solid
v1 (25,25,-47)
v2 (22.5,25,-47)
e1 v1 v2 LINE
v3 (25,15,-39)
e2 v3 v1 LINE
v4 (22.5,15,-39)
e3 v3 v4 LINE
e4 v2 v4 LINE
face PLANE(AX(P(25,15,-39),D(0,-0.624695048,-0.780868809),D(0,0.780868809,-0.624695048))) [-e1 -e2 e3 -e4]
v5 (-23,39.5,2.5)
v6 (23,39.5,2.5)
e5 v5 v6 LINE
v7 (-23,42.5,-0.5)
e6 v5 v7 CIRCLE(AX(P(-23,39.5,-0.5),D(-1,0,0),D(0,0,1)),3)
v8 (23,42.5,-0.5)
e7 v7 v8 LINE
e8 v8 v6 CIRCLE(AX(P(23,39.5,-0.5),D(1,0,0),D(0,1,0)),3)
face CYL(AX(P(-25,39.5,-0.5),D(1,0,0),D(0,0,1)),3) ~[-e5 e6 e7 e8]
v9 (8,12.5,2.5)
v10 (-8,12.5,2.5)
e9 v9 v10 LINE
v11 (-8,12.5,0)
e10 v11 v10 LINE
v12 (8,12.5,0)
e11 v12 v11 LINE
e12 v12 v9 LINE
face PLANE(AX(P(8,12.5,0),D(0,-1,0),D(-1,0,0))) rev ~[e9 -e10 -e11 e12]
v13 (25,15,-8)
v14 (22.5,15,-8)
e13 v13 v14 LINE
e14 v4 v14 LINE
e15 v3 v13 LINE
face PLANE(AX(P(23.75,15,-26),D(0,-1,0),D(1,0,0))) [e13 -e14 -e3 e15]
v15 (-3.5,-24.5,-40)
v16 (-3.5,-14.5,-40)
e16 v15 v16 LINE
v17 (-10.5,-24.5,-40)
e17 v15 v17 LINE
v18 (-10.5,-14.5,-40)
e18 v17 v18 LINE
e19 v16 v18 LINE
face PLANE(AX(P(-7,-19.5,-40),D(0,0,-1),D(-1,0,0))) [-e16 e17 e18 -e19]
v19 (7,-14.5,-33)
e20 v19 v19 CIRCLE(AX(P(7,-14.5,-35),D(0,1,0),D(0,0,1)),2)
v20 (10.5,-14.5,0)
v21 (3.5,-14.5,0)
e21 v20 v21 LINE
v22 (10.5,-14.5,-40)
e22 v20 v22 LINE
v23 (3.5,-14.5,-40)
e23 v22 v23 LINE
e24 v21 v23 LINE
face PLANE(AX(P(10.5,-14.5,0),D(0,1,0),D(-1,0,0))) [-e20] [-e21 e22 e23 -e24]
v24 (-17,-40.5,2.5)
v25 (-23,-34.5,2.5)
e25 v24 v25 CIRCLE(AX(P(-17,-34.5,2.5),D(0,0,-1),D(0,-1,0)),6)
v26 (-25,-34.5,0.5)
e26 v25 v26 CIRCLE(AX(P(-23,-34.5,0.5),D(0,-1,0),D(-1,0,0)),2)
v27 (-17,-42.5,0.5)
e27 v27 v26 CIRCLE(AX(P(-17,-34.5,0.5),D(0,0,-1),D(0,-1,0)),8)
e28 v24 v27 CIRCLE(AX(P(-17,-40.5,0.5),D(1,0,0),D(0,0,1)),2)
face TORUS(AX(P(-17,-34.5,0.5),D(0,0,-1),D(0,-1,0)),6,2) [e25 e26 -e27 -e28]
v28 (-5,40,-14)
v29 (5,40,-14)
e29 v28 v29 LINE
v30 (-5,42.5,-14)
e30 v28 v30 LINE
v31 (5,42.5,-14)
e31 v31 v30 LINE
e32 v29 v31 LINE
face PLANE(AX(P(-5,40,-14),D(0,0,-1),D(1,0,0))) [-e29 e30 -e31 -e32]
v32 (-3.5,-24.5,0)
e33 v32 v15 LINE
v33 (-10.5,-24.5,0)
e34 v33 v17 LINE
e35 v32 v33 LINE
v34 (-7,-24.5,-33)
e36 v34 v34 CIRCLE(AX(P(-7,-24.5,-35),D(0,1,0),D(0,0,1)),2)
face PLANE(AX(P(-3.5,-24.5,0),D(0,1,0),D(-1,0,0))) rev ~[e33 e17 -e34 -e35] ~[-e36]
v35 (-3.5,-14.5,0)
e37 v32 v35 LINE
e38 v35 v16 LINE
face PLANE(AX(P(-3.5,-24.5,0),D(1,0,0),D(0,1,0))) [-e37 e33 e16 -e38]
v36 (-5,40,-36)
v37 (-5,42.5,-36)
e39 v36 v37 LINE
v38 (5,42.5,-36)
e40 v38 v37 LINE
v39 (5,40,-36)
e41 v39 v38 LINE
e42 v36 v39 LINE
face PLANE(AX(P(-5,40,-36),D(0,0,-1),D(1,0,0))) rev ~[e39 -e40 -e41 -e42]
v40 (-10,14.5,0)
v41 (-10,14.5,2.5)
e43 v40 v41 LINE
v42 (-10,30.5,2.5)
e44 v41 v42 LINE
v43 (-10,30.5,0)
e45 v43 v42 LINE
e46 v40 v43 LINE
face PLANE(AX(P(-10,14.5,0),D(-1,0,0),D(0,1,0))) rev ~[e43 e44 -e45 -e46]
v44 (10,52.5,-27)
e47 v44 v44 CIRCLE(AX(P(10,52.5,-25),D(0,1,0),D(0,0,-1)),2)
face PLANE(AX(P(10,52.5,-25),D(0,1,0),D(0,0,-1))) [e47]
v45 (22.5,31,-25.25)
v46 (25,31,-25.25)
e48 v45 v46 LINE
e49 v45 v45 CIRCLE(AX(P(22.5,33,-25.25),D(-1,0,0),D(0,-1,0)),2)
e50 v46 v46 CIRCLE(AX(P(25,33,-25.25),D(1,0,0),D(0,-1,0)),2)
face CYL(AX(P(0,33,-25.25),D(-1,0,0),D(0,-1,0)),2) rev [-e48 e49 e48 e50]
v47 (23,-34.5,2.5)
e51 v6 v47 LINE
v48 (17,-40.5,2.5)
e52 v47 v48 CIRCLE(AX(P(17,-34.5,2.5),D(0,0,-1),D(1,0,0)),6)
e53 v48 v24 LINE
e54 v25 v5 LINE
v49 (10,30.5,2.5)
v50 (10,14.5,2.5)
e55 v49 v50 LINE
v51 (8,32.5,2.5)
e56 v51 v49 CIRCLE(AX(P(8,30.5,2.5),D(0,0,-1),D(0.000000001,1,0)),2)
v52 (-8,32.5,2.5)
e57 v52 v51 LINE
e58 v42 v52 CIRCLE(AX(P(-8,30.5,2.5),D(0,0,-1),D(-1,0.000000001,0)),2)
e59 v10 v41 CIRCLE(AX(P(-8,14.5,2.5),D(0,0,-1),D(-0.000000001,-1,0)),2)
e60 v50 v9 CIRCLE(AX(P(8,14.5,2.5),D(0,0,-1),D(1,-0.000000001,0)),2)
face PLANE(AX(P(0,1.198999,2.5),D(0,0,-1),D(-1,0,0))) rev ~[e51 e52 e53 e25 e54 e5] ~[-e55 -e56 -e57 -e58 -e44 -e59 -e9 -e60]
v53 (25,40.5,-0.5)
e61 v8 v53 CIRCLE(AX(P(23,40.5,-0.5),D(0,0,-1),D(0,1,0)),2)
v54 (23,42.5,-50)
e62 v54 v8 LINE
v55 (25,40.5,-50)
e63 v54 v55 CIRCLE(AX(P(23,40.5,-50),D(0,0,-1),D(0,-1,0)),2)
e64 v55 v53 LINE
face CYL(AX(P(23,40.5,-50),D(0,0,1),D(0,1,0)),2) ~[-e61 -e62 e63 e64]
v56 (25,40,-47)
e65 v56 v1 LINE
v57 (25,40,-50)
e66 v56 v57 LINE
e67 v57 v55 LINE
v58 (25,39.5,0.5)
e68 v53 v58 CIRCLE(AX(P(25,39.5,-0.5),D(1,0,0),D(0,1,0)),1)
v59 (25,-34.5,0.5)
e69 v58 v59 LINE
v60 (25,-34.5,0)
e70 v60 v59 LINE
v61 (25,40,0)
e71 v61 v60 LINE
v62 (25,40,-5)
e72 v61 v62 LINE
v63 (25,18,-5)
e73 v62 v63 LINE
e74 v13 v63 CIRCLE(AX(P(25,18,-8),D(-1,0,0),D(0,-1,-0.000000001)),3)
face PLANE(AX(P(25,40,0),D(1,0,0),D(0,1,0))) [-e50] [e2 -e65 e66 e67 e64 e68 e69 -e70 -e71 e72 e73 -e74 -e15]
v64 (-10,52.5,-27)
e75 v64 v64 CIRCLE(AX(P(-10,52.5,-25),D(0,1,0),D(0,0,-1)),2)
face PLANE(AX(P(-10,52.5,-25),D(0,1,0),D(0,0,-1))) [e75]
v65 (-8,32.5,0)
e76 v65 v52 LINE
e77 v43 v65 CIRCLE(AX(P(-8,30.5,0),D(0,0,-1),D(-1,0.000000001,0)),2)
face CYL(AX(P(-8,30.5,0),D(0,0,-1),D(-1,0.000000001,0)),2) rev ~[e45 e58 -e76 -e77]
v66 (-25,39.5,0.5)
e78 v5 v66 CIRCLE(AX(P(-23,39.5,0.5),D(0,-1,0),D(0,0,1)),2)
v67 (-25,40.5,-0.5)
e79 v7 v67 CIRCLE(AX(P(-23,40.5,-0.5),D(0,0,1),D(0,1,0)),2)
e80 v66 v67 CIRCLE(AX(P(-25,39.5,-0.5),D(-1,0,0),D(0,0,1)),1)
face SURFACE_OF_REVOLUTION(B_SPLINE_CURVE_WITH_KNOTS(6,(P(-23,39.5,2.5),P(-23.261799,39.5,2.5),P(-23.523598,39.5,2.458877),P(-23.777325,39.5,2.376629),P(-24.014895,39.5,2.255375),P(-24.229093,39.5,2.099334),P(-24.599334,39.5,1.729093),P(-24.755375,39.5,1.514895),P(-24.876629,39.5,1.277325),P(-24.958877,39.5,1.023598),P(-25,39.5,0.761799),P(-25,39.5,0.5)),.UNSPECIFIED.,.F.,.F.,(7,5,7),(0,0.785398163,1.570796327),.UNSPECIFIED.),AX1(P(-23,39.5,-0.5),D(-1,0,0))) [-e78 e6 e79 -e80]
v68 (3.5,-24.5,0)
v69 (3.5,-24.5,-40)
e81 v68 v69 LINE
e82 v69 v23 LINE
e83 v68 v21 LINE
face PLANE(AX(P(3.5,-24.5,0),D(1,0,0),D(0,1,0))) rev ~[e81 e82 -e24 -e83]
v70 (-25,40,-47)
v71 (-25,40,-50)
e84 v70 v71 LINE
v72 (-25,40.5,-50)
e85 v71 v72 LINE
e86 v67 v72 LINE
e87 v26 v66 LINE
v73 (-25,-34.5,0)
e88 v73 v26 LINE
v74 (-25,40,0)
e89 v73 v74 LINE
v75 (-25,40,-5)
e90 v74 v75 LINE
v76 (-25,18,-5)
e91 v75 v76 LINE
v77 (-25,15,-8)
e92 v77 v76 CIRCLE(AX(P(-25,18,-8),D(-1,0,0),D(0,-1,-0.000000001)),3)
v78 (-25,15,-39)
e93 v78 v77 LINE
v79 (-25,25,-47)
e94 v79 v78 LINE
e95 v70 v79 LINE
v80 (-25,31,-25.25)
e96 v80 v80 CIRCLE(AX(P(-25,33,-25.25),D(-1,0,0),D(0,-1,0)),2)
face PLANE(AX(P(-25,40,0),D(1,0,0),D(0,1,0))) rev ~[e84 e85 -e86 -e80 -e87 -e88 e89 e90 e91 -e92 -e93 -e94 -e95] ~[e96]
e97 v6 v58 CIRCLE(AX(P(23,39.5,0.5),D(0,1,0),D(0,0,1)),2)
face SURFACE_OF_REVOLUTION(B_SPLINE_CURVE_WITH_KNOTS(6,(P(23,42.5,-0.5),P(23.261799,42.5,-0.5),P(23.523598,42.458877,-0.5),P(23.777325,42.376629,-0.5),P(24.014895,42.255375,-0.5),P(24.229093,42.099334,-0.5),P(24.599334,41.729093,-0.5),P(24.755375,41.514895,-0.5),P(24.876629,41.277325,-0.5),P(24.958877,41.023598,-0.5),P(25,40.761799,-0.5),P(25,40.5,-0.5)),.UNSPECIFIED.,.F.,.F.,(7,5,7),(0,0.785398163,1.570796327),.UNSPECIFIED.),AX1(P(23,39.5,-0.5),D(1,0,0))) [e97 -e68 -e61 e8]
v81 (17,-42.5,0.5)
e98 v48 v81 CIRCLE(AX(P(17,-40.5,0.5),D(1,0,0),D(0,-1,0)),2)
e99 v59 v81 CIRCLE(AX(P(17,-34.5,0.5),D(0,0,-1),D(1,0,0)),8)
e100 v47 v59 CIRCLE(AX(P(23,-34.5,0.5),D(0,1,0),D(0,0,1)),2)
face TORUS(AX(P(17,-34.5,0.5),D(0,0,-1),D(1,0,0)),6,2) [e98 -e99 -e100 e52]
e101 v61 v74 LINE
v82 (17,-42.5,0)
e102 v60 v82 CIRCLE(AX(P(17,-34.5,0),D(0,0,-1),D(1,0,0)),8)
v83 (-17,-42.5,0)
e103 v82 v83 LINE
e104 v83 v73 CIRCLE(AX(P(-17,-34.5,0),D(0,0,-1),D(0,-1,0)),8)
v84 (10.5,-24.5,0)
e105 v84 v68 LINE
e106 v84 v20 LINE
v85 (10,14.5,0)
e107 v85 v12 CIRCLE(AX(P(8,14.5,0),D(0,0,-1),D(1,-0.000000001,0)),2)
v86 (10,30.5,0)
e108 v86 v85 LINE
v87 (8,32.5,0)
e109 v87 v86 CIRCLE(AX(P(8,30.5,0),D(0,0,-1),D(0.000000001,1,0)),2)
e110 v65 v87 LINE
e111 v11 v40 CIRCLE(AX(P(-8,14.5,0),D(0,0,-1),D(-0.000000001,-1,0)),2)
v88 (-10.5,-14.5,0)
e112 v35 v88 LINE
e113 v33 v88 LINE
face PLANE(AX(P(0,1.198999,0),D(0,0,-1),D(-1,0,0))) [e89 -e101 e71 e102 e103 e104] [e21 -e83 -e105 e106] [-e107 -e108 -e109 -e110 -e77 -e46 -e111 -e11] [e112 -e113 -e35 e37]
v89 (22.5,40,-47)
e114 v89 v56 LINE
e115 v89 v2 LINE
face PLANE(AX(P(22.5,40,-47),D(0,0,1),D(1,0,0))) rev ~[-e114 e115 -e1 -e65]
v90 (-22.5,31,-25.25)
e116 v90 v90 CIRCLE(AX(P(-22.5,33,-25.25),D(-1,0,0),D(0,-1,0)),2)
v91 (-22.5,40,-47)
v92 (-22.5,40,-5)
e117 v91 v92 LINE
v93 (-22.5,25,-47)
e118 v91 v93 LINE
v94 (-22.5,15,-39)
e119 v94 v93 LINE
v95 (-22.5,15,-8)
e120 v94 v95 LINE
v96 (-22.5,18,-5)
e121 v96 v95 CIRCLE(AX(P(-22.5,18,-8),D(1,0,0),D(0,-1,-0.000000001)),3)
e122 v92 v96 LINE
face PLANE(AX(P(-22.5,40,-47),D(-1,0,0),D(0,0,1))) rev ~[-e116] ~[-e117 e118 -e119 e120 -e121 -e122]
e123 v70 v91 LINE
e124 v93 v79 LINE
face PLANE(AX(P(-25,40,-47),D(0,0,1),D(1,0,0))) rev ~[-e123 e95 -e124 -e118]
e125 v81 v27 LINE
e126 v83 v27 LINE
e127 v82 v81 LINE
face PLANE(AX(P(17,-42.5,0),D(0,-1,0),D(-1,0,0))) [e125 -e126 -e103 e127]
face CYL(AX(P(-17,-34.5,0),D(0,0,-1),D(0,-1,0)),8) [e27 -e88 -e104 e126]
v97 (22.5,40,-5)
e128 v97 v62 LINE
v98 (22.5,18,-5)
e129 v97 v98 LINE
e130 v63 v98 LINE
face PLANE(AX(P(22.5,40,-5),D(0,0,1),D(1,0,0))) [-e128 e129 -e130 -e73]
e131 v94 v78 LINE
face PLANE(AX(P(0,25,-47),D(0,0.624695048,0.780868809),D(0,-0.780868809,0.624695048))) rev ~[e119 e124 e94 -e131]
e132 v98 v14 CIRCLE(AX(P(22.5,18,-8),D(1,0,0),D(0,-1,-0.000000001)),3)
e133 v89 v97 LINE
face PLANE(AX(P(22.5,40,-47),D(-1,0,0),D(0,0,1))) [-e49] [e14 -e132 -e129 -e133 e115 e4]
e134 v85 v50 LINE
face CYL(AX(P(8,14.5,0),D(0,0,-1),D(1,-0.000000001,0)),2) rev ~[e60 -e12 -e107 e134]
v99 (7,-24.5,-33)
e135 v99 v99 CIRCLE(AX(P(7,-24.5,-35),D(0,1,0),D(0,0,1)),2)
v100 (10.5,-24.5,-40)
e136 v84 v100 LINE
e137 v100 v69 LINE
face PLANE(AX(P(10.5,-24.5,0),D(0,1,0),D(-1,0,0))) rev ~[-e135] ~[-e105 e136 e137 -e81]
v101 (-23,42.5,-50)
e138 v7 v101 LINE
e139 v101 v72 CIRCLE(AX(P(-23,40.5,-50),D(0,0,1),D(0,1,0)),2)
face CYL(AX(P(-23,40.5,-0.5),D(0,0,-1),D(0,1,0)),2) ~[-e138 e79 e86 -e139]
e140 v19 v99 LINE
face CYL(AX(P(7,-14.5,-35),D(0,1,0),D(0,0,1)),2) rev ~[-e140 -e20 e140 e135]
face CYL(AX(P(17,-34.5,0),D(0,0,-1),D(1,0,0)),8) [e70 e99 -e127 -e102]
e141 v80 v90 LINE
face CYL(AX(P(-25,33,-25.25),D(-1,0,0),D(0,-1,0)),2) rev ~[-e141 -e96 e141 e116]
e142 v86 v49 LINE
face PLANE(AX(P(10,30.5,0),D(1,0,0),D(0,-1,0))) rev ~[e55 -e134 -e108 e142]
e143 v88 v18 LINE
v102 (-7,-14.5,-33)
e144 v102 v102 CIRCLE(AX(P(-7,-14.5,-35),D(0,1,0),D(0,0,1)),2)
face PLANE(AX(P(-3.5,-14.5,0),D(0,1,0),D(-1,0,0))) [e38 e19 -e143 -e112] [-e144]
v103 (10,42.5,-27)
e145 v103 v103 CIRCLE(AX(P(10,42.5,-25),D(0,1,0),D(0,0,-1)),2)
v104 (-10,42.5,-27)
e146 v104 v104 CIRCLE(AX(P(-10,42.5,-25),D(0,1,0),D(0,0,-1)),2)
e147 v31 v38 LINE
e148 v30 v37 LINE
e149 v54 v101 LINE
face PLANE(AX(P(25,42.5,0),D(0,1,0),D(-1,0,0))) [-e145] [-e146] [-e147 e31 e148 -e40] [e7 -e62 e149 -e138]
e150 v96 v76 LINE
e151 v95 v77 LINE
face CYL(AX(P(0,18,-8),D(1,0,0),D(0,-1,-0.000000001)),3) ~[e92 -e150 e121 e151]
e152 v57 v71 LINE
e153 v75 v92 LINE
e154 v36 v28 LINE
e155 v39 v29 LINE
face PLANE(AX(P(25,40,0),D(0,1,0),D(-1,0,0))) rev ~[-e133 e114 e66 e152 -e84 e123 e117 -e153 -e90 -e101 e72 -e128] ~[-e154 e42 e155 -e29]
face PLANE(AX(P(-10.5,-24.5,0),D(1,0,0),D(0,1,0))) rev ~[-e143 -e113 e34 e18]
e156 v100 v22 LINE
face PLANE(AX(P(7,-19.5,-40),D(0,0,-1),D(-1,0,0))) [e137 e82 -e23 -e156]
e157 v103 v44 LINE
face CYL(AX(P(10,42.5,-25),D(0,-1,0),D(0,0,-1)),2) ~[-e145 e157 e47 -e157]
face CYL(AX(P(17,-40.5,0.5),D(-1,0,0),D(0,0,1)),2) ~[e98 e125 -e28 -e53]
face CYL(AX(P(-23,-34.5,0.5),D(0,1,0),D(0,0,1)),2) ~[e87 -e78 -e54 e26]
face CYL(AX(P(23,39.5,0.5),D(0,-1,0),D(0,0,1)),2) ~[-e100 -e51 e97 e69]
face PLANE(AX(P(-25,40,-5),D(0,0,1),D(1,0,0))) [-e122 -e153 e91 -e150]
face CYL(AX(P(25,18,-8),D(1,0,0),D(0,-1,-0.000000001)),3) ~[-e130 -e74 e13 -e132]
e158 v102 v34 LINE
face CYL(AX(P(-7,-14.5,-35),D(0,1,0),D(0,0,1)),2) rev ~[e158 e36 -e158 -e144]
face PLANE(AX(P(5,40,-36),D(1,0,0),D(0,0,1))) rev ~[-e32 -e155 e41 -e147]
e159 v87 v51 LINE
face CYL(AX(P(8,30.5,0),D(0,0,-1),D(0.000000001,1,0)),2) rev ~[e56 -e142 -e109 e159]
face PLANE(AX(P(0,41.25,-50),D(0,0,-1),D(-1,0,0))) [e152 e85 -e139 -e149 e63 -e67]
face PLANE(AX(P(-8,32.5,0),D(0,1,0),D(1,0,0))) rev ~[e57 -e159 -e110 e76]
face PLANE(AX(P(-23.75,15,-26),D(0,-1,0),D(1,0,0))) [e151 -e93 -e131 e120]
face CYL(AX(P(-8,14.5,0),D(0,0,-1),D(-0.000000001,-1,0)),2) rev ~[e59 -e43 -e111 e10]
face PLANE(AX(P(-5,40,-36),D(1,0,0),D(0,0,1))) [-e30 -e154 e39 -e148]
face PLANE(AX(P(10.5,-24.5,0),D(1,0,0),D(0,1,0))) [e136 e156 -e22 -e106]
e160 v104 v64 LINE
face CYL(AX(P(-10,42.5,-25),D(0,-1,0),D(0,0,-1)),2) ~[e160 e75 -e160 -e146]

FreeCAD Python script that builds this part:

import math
import FreeCAD as App
import Part
import Sketcher
from FreeCAD import Vector


def edges_at(feature, points):
    """Names of the edges that pass closest to the given points."""
    edges = feature.Shape.Edges
    near = lambda p: min(range(len(edges)), key=lambda i: edges[i].distToShape(Part.Vertex(*p))[0])
    return sorted({f"Edge{near(p) + 1}" for p in points})

doc = App.newDocument("Part")
params = doc.addObject("Spreadsheet::Sheet", "Params")
for row, (alias, value) in enumerate([
    ("sketch1_radius", "8 mm"),
    ("sketch1_radius2", "2 mm"),
    ("sketch1_width", "34 mm"),
    ("sketch1_width2", "16 mm"),
    ("sketch1_height", "77 mm"),
    ("pad1_length", "2.5 mm"),
    ("sketch2_width", "50 mm"),
    ("sketch2_height", "2.5 mm"),
    ("pad2_length", "50 mm"),
    ("fillet_radius", "3 mm"),
    ("sketch3_height", "42 mm"),
    ("sketch3_width", "2.5 mm"),
    ("pad3_length", "25 mm"),
    ("fillet2_radius", "2 mm"),
    ("sketch4_radius", "3 mm"),
    ("sketch4_width", "10 mm"),
    ("sketch4_height", "8 mm"),
    ("pocket1_length", "25 mm"),
    ("sketch5_radius", "3 mm"),
    ("sketch5_width", "10 mm"),
    ("sketch5_height", "8 mm"),
    ("pocket2_length", "25 mm"),
    ("sketch6_width", "10 mm"),
    ("sketch6_height", "22 mm"),
    ("pocket3_length", "25 mm"),
    ("sketch7_diameter", "4 mm"),
    ("pocket4_length", "25 mm"),
    ("sketch8_diameter", "4 mm"),
    ("pocket5_length", "25 mm"),
    ("sketch9_diameter", "4 mm"),
    ("pad4_length", "10 mm"),
    ("sketch10_width", "7 mm"),
    ("sketch10_height", "10 mm"),
    ("pad5_length", "40 mm"),
    ("sketch11_diameter", "4 mm"),
    ("pocket6_length", "50 mm"),
    ("sketch12_diameter", "4 mm"),
    ("pocket7_length", "50 mm"),
], start=1):
    params.set(f"A{row}", alias)
    params.set(f"B{row}", "=" + value)
    params.setAlias(f"B{row}", alias)

body = doc.addObject("PartDesign::Body", "Body")

# Sketch on XY plane
sketch1 = body.newObject("Sketcher::SketchObject", "Sketch")
sketch1.AttachmentSupport = (doc.getObject("XY_Plane"), [""])
sketch1.MapMode = "FlatFace"
sketch1.addGeometry([
    Part.LineSegment(Vector(-17, -42.5, 0), Vector(17, -42.5, 0)),  # 0
    Part.ArcOfCircle(Part.Circle(Vector(17, -34.5, 0), Vector(0, 0, 1), 8), math.radians(-90), math.radians(0)),  # 1
    Part.LineSegment(Vector(25, -34.5, 0), Vector(25, 42.5, 0)),  # 2
    Part.LineSegment(Vector(25, 42.5, 0), Vector(-25, 42.5, 0)),  # 3
    Part.LineSegment(Vector(-25, 42.5, 0), Vector(-25, -34.5, 0)),  # 4
    Part.ArcOfCircle(Part.Circle(Vector(-17, -34.5, 0), Vector(0, 0, 1), 8), math.radians(-180), math.radians(-90)),  # 5
    Part.LineSegment(Vector(8, 12.5, 0), Vector(-8, 12.5, 0)),  # 6
    Part.ArcOfCircle(Part.Circle(Vector(-8, 14.5, 0), Vector(0, 0, 1), 2), math.radians(-180), math.radians(-90)),  # 7
    Part.LineSegment(Vector(-10, 14.5, 0), Vector(-10, 30.5, 0)),  # 8
    Part.ArcOfCircle(Part.Circle(Vector(-8, 30.5, 0), Vector(0, 0, 1), 2), math.radians(90), math.radians(180)),  # 9
    Part.LineSegment(Vector(-8, 32.5, 0), Vector(8, 32.5, 0)),  # 10
    Part.ArcOfCircle(Part.Circle(Vector(8, 30.5, 0), Vector(0, 0, 1), 2), math.radians(0), math.radians(90)),  # 11
    Part.LineSegment(Vector(10, 30.5, 0), Vector(10, 14.5, 0)),  # 12
    Part.ArcOfCircle(Part.Circle(Vector(8, 14.5, 0), Vector(0, 0, 1), 2), math.radians(-90), math.radians(0)),  # 13
], False)
sketch1.addConstraint([
    Sketcher.Constraint("Tangent", 0, 2, 1, 1),
    Sketcher.Constraint("Tangent", 1, 2, 2, 1),
    Sketcher.Constraint("Coincident", 2, 2, 3, 1),
    Sketcher.Constraint("Coincident", 3, 2, 4, 1),
    Sketcher.Constraint("Tangent", 4, 2, 5, 1),
    Sketcher.Constraint("Tangent", 5, 2, 0, 1),
    Sketcher.Constraint("Tangent", 6, 2, 7, 2),
    Sketcher.Constraint("Tangent", 7, 1, 8, 1),
    Sketcher.Constraint("Tangent", 8, 2, 9, 2),
    Sketcher.Constraint("Tangent", 9, 1, 10, 1),
    Sketcher.Constraint("Tangent", 10, 2, 11, 2),
    Sketcher.Constraint("Tangent", 11, 1, 12, 1),
    Sketcher.Constraint("Tangent", 12, 2, 13, 2),
    Sketcher.Constraint("Tangent", 13, 1, 6, 1),
    Sketcher.Constraint("Horizontal", 0),
    Sketcher.Constraint("Vertical", 2),
    Sketcher.Constraint("Horizontal", 3),
    Sketcher.Constraint("Vertical", 4),
    Sketcher.Constraint("Horizontal", 6),
    Sketcher.Constraint("Vertical", 8),
    Sketcher.Constraint("Horizontal", 10),
    Sketcher.Constraint("Vertical", 12),
    Sketcher.Constraint("Equal", 1, 5),
    Sketcher.Constraint("Equal", 7, 9),
    Sketcher.Constraint("Equal", 9, 11),
    Sketcher.Constraint("Equal", 11, 13),
    Sketcher.Constraint("Equal", 10, 8),
    Sketcher.Constraint("Radius", 1, 8.0),
    Sketcher.Constraint("Radius", 7, 2.0),
    Sketcher.Constraint("DistanceX", 0, 1, 0, 2, 34.0),
    Sketcher.Constraint("DistanceX", 6, 2, 6, 1, 16.0),
    Sketcher.Constraint("DistanceY", 2, 1, 2, 2, 77.0),
    Sketcher.Constraint("DistanceX", -1, 1, 1, 3, 17.0),
    Sketcher.Constraint("DistanceX", 7, 3, -1, 1, 8.0),
    Sketcher.Constraint("DistanceY", 5, 3, 7, 3, 49.0),
    Sketcher.Constraint("DistanceY", 1, 3, -1, 1, 34.5),
])
sketch1.setExpression("Constraints[27]", "Params.sketch1_radius")
sketch1.setExpression("Constraints[28]", "Params.sketch1_radius2")
sketch1.setExpression("Constraints[29]", "Params.sketch1_width")
sketch1.setExpression("Constraints[30]", "Params.sketch1_width2")
sketch1.setExpression("Constraints[31]", "Params.sketch1_height")
pad1 = body.newObject("PartDesign::Pad", "Pad")
pad1.Profile = sketch1
pad1.setExpression("Length", "Params.pad1_length")

# Sketch on XY plane
sketch2 = body.newObject("Sketcher::SketchObject", "Sketch001")
sketch2.AttachmentSupport = (doc.getObject("XY_Plane"), [""])
sketch2.MapMode = "FlatFace"
sketch2.addGeometry([
    Part.LineSegment(Vector(25, 42.5, 0), Vector(25, 40, 0)),
    Part.LineSegment(Vector(25, 40, 0), Vector(-25, 40, 0)),
    Part.LineSegment(Vector(-25, 40, 0), Vector(-25, 42.5, 0)),
    Part.LineSegment(Vector(-25, 42.5, 0), Vector(25, 42.5, 0)),
], False)
sketch2.addConstraint([
    Sketcher.Constraint("Coincident", 0, 2, 1, 1),
    Sketcher.Constraint("Coincident", 1, 2, 2, 1),
    Sketcher.Constraint("Coincident", 2, 2, 3, 1),
    Sketcher.Constraint("Coincident", 3, 2, 0, 1),
    Sketcher.Constraint("Vertical", 0),
    Sketcher.Constraint("Horizontal", 1),
    Sketcher.Constraint("Vertical", 2),
    Sketcher.Constraint("Horizontal", 3),
    Sketcher.Constraint("DistanceX", 1, 2, 1, 1, 50.0),
    Sketcher.Constraint("DistanceY", 0, 2, 0, 1, 2.5),
    Sketcher.Constraint("DistanceX", -1, 1, 0, 2, 25.0),
    Sketcher.Constraint("DistanceY", -1, 1, 0, 2, 40.0),
])
sketch2.setExpression("Constraints[8]", "Params.sketch2_width")
sketch2.setExpression("Constraints[9]", "Params.sketch2_height")
pad2 = body.newObject("PartDesign::Pad", "Pad001")
pad2.Profile = sketch2
pad2.setExpression("Length", "Params.pad2_length")
pad2.Reversed = True
doc.recompute()

fillet = body.newObject("PartDesign::Fillet", "Fillet")
fillet.Base = (pad2, edges_at(pad2, [(0, 42.5, 2.5)]))
fillet.setExpression("Radius", "Params.fillet_radius")

# Sketch on XZ plane
sketch3 = body.newObject("Sketcher::SketchObject", "Sketch002")
sketch3.AttachmentSupport = (doc.getObject("XZ_Plane"), [""])
sketch3.MapMode = "FlatFace"
sketch3.AttachmentOffset = App.Placement(Vector(0, 0, -40), App.Rotation())
sketch3.addGeometry([
    Part.LineSegment(Vector(-25, -5, 0), Vector(-25, -47, 0)),  # 0
    Part.LineSegment(Vector(-25, -47, 0), Vector(-22.5, -47, 0)),  # 1
    Part.LineSegment(Vector(-22.5, -47, 0), Vector(-22.5, -5, 0)),  # 2
    Part.LineSegment(Vector(-22.5, -5, 0), Vector(-25, -5, 0)),  # 3
    Part.LineSegment(Vector(22.5, -5, 0), Vector(22.5, -47, 0)),  # 4
    Part.LineSegment(Vector(22.5, -47, 0), Vector(25, -47, 0)),  # 5
    Part.LineSegment(Vector(25, -47, 0), Vector(25, -5, 0)),  # 6
    Part.LineSegment(Vector(25, -5, 0), Vector(22.5, -5, 0)),  # 7
], False)
sketch3.addConstraint([
    Sketcher.Constraint("Coincident", 0, 2, 1, 1),
    Sketcher.Constraint("Coincident", 1, 2, 2, 1),
    Sketcher.Constraint("Coincident", 2, 2, 3, 1),
    Sketcher.Constraint("Coincident", 3, 2, 0, 1),
    Sketcher.Constraint("Coincident", 4, 2, 5, 1),
    Sketcher.Constraint("Coincident", 5, 2, 6, 1),
    Sketcher.Constraint("Coincident", 6, 2, 7, 1),
    Sketcher.Constraint("Coincident", 7, 2, 4, 1),
    Sketcher.Constraint("Vertical", 0),
    Sketcher.Constraint("Horizontal", 1),
    Sketcher.Constraint("Vertical", 2),
    Sketcher.Constraint("Horizontal", 3),
    Sketcher.Constraint("Vertical", 4),
    Sketcher.Constraint("Horizontal", 5),
    Sketcher.Constraint("Vertical", 6),
    Sketcher.Constraint("Horizontal", 7),
    Sketcher.Constraint("Symmetric", 1, 2, 4, 2, -2),
    Sketcher.Constraint("Symmetric", 3, 2, 6, 2, -2),
    Sketcher.Constraint("DistanceY", 0, 2, 0, 1, 42.0),
    Sketcher.Constraint("DistanceX", 1, 1, 1, 2, 2.5),
    Sketcher.Constraint("DistanceX", 0, 2, -1, 1, 25.0),
    Sketcher.Constraint("DistanceY", 0, 2, -1, 1, 47.0),
])
sketch3.setExpression("Constraints[18]", "Params.sketch3_height")
sketch3.setExpression("Constraints[19]", "Params.sketch3_width")
pad3 = body.newObject("PartDesign::Pad", "Pad002")
pad3.Profile = sketch3
pad3.setExpression("Length", "Params.pad3_length")
doc.recompute()

fillet2 = body.newObject("PartDesign::Fillet", "Fillet001")
fillet2.Base = (pad3, edges_at(pad3, [
    (0, -42.5, 2.5),
    (22.657, -40.157, 2.5),
    (25, 2.5, 2.5),
    (-25, 2.5, 2.5),
    (-25, 42.5, -25.25),
    (-25, 41.621, 1.621),
    (25, 42.5, -25.25),
    (25, 41.621, 1.621),
    (-22.657, -40.157, 2.5),
]))
fillet2.setExpression("Radius", "Params.fillet2_radius")

# Sketch on YZ plane
sketch4 = body.newObject("Sketcher::SketchObject", "Sketch003")
sketch4.AttachmentSupport = (doc.getObject("YZ_Plane"), [""])
sketch4.MapMode = "FlatFace"
sketch4.AttachmentOffset = App.Placement(Vector(0, 0, 25), App.Rotation())
sketch4.addGeometry([
    Part.LineSegment(Vector(25, -47, 0), Vector(15, -39, 0)),  # 0
    Part.LineSegment(Vector(15, -39, 0), Vector(15, -47, 0)),  # 1
    Part.LineSegment(Vector(15, -47, 0), Vector(25, -47, 0)),  # 2
    Part.LineSegment(Vector(18, -5, 0), Vector(15, -5, 0)),  # 3
    Part.LineSegment(Vector(15, -5, 0), Vector(15, -8, 0)),  # 4
    Part.ArcOfCircle(Part.Circle(Vector(18, -8, 0), Vector(0, 0, 1), 3), math.radians(90), math.radians(180)),  # 5
], False)
sketch4.addConstraint([
    Sketcher.Constraint("Coincident", 0, 2, 1, 1),
    Sketcher.Constraint("Coincident", 1, 2, 2, 1),
    Sketcher.Constraint("Coincident", 2, 2, 0, 1),
    Sketcher.Constraint("Coincident", 3, 2, 4, 1),
    Sketcher.Constraint("Tangent", 4, 2, 5, 2),
    Sketcher.Constraint("Tangent", 5, 1, 3, 1),
    Sketcher.Constraint("Vertical", 1),
    Sketcher.Constraint("Horizontal", 2),
    Sketcher.Constraint("Horizontal", 3),
    Sketcher.Constraint("Vertical", 4),
    Sketcher.Constraint("Vertical", 1, 2, 3, 2),
    Sketcher.Constraint("Radius", 5, 3.0),
    Sketcher.Constraint("DistanceX", 2, 1, 2, 2, 10.0),
    Sketcher.Constraint("DistanceY", 1, 2, 1, 1, 8.0),
    Sketcher.Constraint("DistanceX", -1, 1, 5, 3, 18.0),
    Sketcher.Constraint("DistanceY", 5, 3, -1, 1, 8.0),
    Sketcher.Constraint("DistanceY", 0, 2, -1, 1, 39.0),
])
sketch4.setExpression("Constraints[11]", "Params.sketch4_radius")
sketch4.setExpression("Constraints[12]", "Params.sketch4_width")
sketch4.setExpression("Constraints[13]", "Params.sketch4_height")
pocket1 = body.newObject("PartDesign::Pocket", "Pocket")
pocket1.Profile = sketch4
pocket1.setExpression("Length", "Params.pocket1_length")

# Sketch on YZ plane
sketch5 = body.newObject("Sketcher::SketchObject", "Sketch004")
sketch5.AttachmentSupport = (doc.getObject("YZ_Plane"), [""])
sketch5.MapMode = "FlatFace"
sketch5.addGeometry([
    Part.LineSegment(Vector(15, -47, 0), Vector(15, -39, 0)),  # 0
    Part.LineSegment(Vector(15, -39, 0), Vector(25, -47, 0)),  # 1
    Part.LineSegment(Vector(25, -47, 0), Vector(15, -47, 0)),  # 2
    Part.LineSegment(Vector(15, -5, 0), Vector(18, -5, 0)),  # 3
    Part.ArcOfCircle(Part.Circle(Vector(18, -8, 0), Vector(0, 0, 1), 3), math.radians(90), math.radians(180)),  # 4
    Part.LineSegment(Vector(15, -8, 0), Vector(15, -5, 0)),  # 5
], False)
sketch5.addConstraint([
    Sketcher.Constraint("Coincident", 0, 2, 1, 1),
    Sketcher.Constraint("Coincident", 1, 2, 2, 1),
    Sketcher.Constraint("Coincident", 2, 2, 0, 1),
    Sketcher.Constraint("Tangent", 3, 2, 4, 1),
    Sketcher.Constraint("Tangent", 4, 2, 5, 1),
    Sketcher.Constraint("Coincident", 5, 2, 3, 1),
    Sketcher.Constraint("Vertical", 0),
    Sketcher.Constraint("Horizontal", 2),
    Sketcher.Constraint("Horizontal", 3),
    Sketcher.Constraint("Vertical", 5),
    Sketcher.Constraint("Vertical", 2, 2, 4, 2),
    Sketcher.Constraint("Radius", 4, 3.0),
    Sketcher.Constraint("DistanceX", 2, 2, 2, 1, 10.0),
    Sketcher.Constraint("DistanceY", 0, 1, 0, 2, 8.0),
    Sketcher.Constraint("DistanceX", -1, 1, 4, 3, 18.0),
    Sketcher.Constraint("DistanceY", 4, 3, -1, 1, 8.0),
    Sketcher.Constraint("DistanceY", 0, 2, -1, 1, 39.0),
])
sketch5.setExpression("Constraints[11]", "Params.sketch5_radius")
sketch5.setExpression("Constraints[12]", "Params.sketch5_width")
sketch5.setExpression("Constraints[13]", "Params.sketch5_height")
pocket2 = body.newObject("PartDesign::Pocket", "Pocket001")
pocket2.Profile = sketch5
pocket2.setExpression("Length", "Params.pocket2_length")

# Sketch on XZ plane
sketch6 = body.newObject("Sketcher::SketchObject", "Sketch005")
sketch6.AttachmentSupport = (doc.getObject("XZ_Plane"), [""])
sketch6.MapMode = "FlatFace"
sketch6.AttachmentOffset = App.Placement(Vector(0, 0, -40), App.Rotation())
sketch6.addGeometry([
    Part.LineSegment(Vector(-5, -14, 0), Vector(-5, -36, 0)),
    Part.LineSegment(Vector(-5, -36, 0), Vector(5, -36, 0)),
    Part.LineSegment(Vector(5, -36, 0), Vector(5, -14, 0)),
    Part.LineSegment(Vector(5, -14, 0), Vector(-5, -14, 0)),
], False)
sketch6.addConstraint([
    Sketcher.Constraint("Coincident", 0, 2, 1, 1),
    Sketcher.Constraint("Coincident", 1, 2, 2, 1),
    Sketcher.Constraint("Coincident", 2, 2, 3, 1),
    Sketcher.Constraint("Coincident", 3, 2, 0, 1),
    Sketcher.Constraint("Vertical", 0),
    Sketcher.Constraint("Horizontal", 1),
    Sketcher.Constraint("Vertical", 2),
    Sketcher.Constraint("Horizontal", 3),
    Sketcher.Constraint("DistanceX", 1, 1, 1, 2, 10.0),
    Sketcher.Constraint("DistanceY", 0, 2, 0, 1, 22.0),
    Sketcher.Constraint("DistanceX", 0, 2, -1, 1, 5.0),
    Sketcher.Constraint("DistanceY", 0, 2, -1, 1, 36.0),
])
sketch6.setExpression("Constraints[8]", "Params.sketch6_width")
sketch6.setExpression("Constraints[9]", "Params.sketch6_height")
pocket3 = body.newObject("PartDesign::Pocket", "Pocket002")
pocket3.Profile = sketch6
pocket3.setExpression("Length", "Params.pocket3_length")

# Sketch on YZ plane
sketch7 = body.newObject("Sketcher::SketchObject", "Sketch006")
sketch7.AttachmentSupport = (doc.getObject("YZ_Plane"), [""])
sketch7.MapMode = "FlatFace"
sketch7.AttachmentOffset = App.Placement(Vector(0, 0, -25), App.Rotation())
sketch7.addGeometry(Part.Circle(Vector(33, -25.2, 0), Vector(0, 0, 1), 2), False)
sketch7.addConstraint([
    Sketcher.Constraint("Diameter", 0, 4.0),
    Sketcher.Constraint("DistanceX", -1, 1, 0, 3, 33.0),
    Sketcher.Constraint("DistanceY", 0, 3, -1, 1, 25.25),
])
sketch7.setExpression("Constraints[0]", "Params.sketch7_diameter")
pocket4 = body.newObject("PartDesign::Pocket", "Pocket003")
pocket4.Profile = sketch7
pocket4.setExpression("Length", "Params.pocket4_length")
pocket4.Reversed = True

# Sketch on YZ plane
sketch8 = body.newObject("Sketcher::SketchObject", "Sketch007")
sketch8.AttachmentSupport = (doc.getObject("YZ_Plane"), [""])
sketch8.MapMode = "FlatFace"
sketch8.addGeometry(Part.Circle(Vector(33, -25.2, 0), Vector(0, 0, 1), 2), False)
sketch8.addConstraint([
    Sketcher.Constraint("Diameter", 0, 4.0),
    Sketcher.Constraint("DistanceX", -1, 1, 0, 3, 33.0),
    Sketcher.Constraint("DistanceY", 0, 3, -1, 1, 25.25),
])
sketch8.setExpression("Constraints[0]", "Params.sketch8_diameter")
pocket5 = body.newObject("PartDesign::Pocket", "Pocket004")
pocket5.Profile = sketch8
pocket5.setExpression("Length", "Params.pocket5_length")
pocket5.Reversed = True

# Sketch on XZ plane
sketch9 = body.newObject("Sketcher::SketchObject", "Sketch008")
sketch9.AttachmentSupport = (doc.getObject("XZ_Plane"), [""])
sketch9.MapMode = "FlatFace"
sketch9.AttachmentOffset = App.Placement(Vector(0, 0, -42.5), App.Rotation())
sketch9.addGeometry([
    Part.Circle(Vector(-10, -25, 0), Vector(0, 0, 1), 2),
    Part.Circle(Vector(10, -25, 0), Vector(0, 0, 1), 2),
], False)
sketch9.addConstraint([
    Sketcher.Constraint("Equal", 0, 1),
    Sketcher.Constraint("Symmetric", 0, 3, 1, 3, -2),
    Sketcher.Constraint("Diameter", 0, 4.0),
    Sketcher.Constraint("DistanceX", 0, 3, -1, 1, 10.0),
    Sketcher.Constraint("DistanceY", 0, 3, -1, 1, 25.0),
])
sketch9.setExpression("Constraints[2]", "Params.sketch9_diameter")
pad4 = body.newObject("PartDesign::Pad", "Pad003")
pad4.Profile = sketch9
pad4.setExpression("Length", "Params.pad4_length")
pad4.Reversed = True

# Sketch on XY plane
sketch10 = body.newObject("Sketcher::SketchObject", "Sketch009")
sketch10.AttachmentSupport = (doc.getObject("XY_Plane"), [""])
sketch10.MapMode = "FlatFace"
sketch10.addGeometry([
    Part.LineSegment(Vector(10, -14, 0), Vector(10, -24, 0)),  # 0
    Part.LineSegment(Vector(10, -24, 0), Vector(4, -24, 0)),  # 1
    Part.LineSegment(Vector(4, -24, 0), Vector(4, -14, 0)),  # 2
    Part.LineSegment(Vector(4, -14, 0), Vector(10, -14, 0)),  # 3
    Part.LineSegment(Vector(-4, -14, 0), Vector(-4, -24, 0)),  # 4
    Part.LineSegment(Vector(-4, -24, 0), Vector(-10, -24, 0)),  # 5
    Part.LineSegment(Vector(-10, -24, 0), Vector(-10, -14, 0)),  # 6
    Part.LineSegment(Vector(-10, -14, 0), Vector(-4, -14, 0)),  # 7
], False)
sketch10.addConstraint([
    Sketcher.Constraint("Coincident", 0, 2, 1, 1),
    Sketcher.Constraint("Coincident", 1, 2, 2, 1),
    Sketcher.Constraint("Coincident", 2, 2, 3, 1),
    Sketcher.Constraint("Coincident", 3, 2, 0, 1),
    Sketcher.Constraint("Coincident", 4, 2, 5, 1),
    Sketcher.Constraint("Coincident", 5, 2, 6, 1),
    Sketcher.Constraint("Coincident", 6, 2, 7, 1),
    Sketcher.Constraint("Coincident", 7, 2, 4, 1),
    Sketcher.Constraint("Vertical", 0),
    Sketcher.Constraint("Horizontal", 1),
    Sketcher.Constraint("Vertical", 2),
    Sketcher.Constraint("Horizontal", 3),
    Sketcher.Constraint("Vertical", 4),
    Sketcher.Constraint("Horizontal", 5),
    Sketcher.Constraint("Vertical", 6),
    Sketcher.Constraint("Horizontal", 7),
    Sketcher.Constraint("Symmetric", 1, 2, 4, 2, -2),
    Sketcher.Constraint("Symmetric", 3, 2, 6, 2, -2),
    Sketcher.Constraint("DistanceX", 1, 2, 1, 1, 7.0),
    Sketcher.Constraint("DistanceY", 0, 2, 0, 1, 10.0),
    Sketcher.Constraint("DistanceX", 4, 2, 1, 2, 7.0),
    Sketcher.Constraint("DistanceY", 0, 2, -1, 1, 24.5),
])
sketch10.setExpression("Constraints[18]", "Params.sketch10_width")
sketch10.setExpression("Constraints[19]", "Params.sketch10_height")
pad5 = body.newObject("PartDesign::Pad", "Pad004")
pad5.Profile = sketch10
pad5.setExpression("Length", "Params.pad5_length")
pad5.Reversed = True

# Sketch on XZ plane
sketch11 = body.newObject("Sketcher::SketchObject", "Sketch010")
sketch11.AttachmentSupport = (doc.getObject("XZ_Plane"), [""])
sketch11.MapMode = "FlatFace"
sketch11.AttachmentOffset = App.Placement(Vector(0, 0, 14.5), App.Rotation())
sketch11.addGeometry(Part.Circle(Vector(-7, -35, 0), Vector(0, 0, 1), 2), False)
sketch11.addConstraint([
    Sketcher.Constraint("Diameter", 0, 4.0),
    Sketcher.Constraint("DistanceX", 0, 3, -1, 1, 7.0),
    Sketcher.Constraint("DistanceY", 0, 3, -1, 1, 35.0),
])
sketch11.setExpression("Constraints[0]", "Params.sketch11_diameter")
pocket6 = body.newObject("PartDesign::Pocket", "Pocket005")
pocket6.Profile = sketch11
pocket6.setExpression("Length", "Params.pocket6_length")
pocket6.Reversed = True

# Sketch on XZ plane
sketch12 = body.newObject("Sketcher::SketchObject", "Sketch011")
sketch12.AttachmentSupport = (doc.getObject("XZ_Plane"), [""])
sketch12.MapMode = "FlatFace"
sketch12.AttachmentOffset = App.Placement(Vector(0, 0, 14.5), App.Rotation())
sketch12.addGeometry(Part.Circle(Vector(7, -35, 0), Vector(0, 0, 1), 2), False)
sketch12.addConstraint([
    Sketcher.Constraint("Diameter", 0, 4.0),
    Sketcher.Constraint("DistanceX", -1, 1, 0, 3, 7.0),
    Sketcher.Constraint("DistanceY", 0, 3, -1, 1, 35.0),
])
sketch12.setExpression("Constraints[0]", "Params.sketch12_diameter")
pocket7 = body.newObject("PartDesign::Pocket", "Pocket006")
pocket7.Profile = sketch12
pocket7.setExpression("Length", "Params.pocket7_length")
pocket7.Reversed = True

doc.recompute()
